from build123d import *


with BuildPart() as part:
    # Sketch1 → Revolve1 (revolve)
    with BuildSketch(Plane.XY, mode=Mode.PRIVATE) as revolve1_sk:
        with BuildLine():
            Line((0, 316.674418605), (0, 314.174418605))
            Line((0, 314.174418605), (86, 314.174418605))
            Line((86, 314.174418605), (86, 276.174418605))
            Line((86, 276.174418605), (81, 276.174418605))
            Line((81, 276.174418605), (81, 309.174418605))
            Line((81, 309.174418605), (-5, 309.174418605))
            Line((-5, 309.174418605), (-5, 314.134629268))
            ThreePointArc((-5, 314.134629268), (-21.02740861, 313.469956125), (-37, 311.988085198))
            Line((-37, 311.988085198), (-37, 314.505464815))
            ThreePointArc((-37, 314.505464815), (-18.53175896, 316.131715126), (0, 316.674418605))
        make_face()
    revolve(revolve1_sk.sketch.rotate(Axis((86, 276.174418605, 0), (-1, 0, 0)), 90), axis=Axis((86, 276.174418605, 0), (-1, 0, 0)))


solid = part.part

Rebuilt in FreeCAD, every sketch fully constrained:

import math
import FreeCAD as App
import Part
import Sketcher
from FreeCAD import Vector

doc = App.newDocument("Part")
body = doc.addObject("PartDesign::Body", "Body")

# Sketch on XY plane
sketch1 = body.newObject("Sketcher::SketchObject", "Sketch")
sketch1.AttachmentSupport = (doc.getObject("XY_Plane"), [""])
sketch1.MapMode = "FlatFace"
sketch1.addGeometry([
    Part.LineSegment(Vector(0, 314.174419, 0), Vector(0, 316.674419, 0)),  # 0
    Part.ArcOfCircle(Part.Circle(Vector(0, 0, 0), Vector(0, 0, 1), 316.674419), math.radians(90), math.radians(96.709721)),  # 1
    Part.LineSegment(Vector(-37, 314.505465, 0), Vector(-37, 311.988085, 0)),  # 2
    Part.ArcOfCircle(Part.Circle(Vector(0, 0.000001, 0), Vector(0, 0, 1), 314.174418), math.radians(90.911885), math.radians(96.763361)),  # 3
    Part.LineSegment(Vector(-5, 314.134629, 0), Vector(-5, 309.174419, 0)),  # 4
    Part.LineSegment(Vector(-5, 309.174419, 0), Vector(81, 309.174419, 0)),  # 5
    Part.LineSegment(Vector(81, 309.174419, 0), Vector(81, 276.174419, 0)),  # 6
    Part.LineSegment(Vector(81, 276.174419, 0), Vector(86, 276.174419, 0)),  # 7
    Part.LineSegment(Vector(86, 276.174419, 0), Vector(86, 314.174419, 0)),  # 8
    Part.LineSegment(Vector(86, 314.174419, 0), Vector(0, 314.174419, 0)),  # 9
], False)
sketch1.addGeometry(Part.LineSegment(Vector(86, 276.174419, 0), Vector(-37, 276.174419, 0)), True)  # axis
sketch1.addConstraint([
    Sketcher.Constraint("Coincident", 0, 2, 1, 1),
    Sketcher.Constraint("Coincident", 1, 2, 2, 1),
    Sketcher.Constraint("Coincident", 2, 2, 3, 2),
    Sketcher.Constraint("Coincident", 3, 1, 4, 1),
    Sketcher.Constraint("Coincident", 4, 2, 5, 1),
    Sketcher.Constraint("Coincident", 5, 2, 6, 1),
    Sketcher.Constraint("Coincident", 6, 2, 7, 1),
    Sketcher.Constraint("Coincident", 7, 2, 8, 1),
    Sketcher.Constraint("Coincident", 8, 2, 9, 1),
    Sketcher.Constraint("Coincident", 9, 2, 0, 1),
    Sketcher.Constraint("Vertical", 0),
    Sketcher.Constraint("Vertical", 2),
    Sketcher.Constraint("Vertical", 4),
    Sketcher.Constraint("Horizontal", 5),
    Sketcher.Constraint("Vertical", 6),
    Sketcher.Constraint("Horizontal", 7),
    Sketcher.Constraint("Vertical", 8),
    Sketcher.Constraint("Horizontal", 9),
    Sketcher.Constraint("Horizontal", 10),
    Sketcher.Constraint("Coincident", 1, 3, -1, 1),
    Sketcher.Constraint("Coincident", 3, 3, -1, 1),
    Sketcher.Constraint("Coincident", 10, 1, 7, 2),
    Sketcher.Constraint("PointOnObject", 0, 2, -2),
    Sketcher.Constraint("Vertical", 2, 2, 10, 2),
    Sketcher.Constraint("Equal", 5, 9),
    Sketcher.Constraint("DistanceX", 5, 1, 5, 2, 86.0),
    Sketcher.Constraint("DistanceX", 7, 1, 7, 2, 5.0),
    Sketcher.Constraint("DistanceX", 10, 2, 10, 1, 123.0),
    Sketcher.Constraint("DistanceY", 6, 2, 6, 1, 33.0),
    Sketcher.Constraint("DistanceY", 8, 1, 8, 2, 38.0),
    Sketcher.Constraint("DistanceY", 0, 1, 0, 2, 2.5),
    Sketcher.Constraint("Radius", 1, 316.674419),
    Sketcher.Constraint("Radius", 3, 314.174418),
])
revolution = body.newObject("PartDesign::Revolution", "Revolution")
revolution.Profile = sketch1
revolution.ReferenceAxis = (sketch1, ["Axis0"])
revolution.Angle = 360

doc.recompute()
